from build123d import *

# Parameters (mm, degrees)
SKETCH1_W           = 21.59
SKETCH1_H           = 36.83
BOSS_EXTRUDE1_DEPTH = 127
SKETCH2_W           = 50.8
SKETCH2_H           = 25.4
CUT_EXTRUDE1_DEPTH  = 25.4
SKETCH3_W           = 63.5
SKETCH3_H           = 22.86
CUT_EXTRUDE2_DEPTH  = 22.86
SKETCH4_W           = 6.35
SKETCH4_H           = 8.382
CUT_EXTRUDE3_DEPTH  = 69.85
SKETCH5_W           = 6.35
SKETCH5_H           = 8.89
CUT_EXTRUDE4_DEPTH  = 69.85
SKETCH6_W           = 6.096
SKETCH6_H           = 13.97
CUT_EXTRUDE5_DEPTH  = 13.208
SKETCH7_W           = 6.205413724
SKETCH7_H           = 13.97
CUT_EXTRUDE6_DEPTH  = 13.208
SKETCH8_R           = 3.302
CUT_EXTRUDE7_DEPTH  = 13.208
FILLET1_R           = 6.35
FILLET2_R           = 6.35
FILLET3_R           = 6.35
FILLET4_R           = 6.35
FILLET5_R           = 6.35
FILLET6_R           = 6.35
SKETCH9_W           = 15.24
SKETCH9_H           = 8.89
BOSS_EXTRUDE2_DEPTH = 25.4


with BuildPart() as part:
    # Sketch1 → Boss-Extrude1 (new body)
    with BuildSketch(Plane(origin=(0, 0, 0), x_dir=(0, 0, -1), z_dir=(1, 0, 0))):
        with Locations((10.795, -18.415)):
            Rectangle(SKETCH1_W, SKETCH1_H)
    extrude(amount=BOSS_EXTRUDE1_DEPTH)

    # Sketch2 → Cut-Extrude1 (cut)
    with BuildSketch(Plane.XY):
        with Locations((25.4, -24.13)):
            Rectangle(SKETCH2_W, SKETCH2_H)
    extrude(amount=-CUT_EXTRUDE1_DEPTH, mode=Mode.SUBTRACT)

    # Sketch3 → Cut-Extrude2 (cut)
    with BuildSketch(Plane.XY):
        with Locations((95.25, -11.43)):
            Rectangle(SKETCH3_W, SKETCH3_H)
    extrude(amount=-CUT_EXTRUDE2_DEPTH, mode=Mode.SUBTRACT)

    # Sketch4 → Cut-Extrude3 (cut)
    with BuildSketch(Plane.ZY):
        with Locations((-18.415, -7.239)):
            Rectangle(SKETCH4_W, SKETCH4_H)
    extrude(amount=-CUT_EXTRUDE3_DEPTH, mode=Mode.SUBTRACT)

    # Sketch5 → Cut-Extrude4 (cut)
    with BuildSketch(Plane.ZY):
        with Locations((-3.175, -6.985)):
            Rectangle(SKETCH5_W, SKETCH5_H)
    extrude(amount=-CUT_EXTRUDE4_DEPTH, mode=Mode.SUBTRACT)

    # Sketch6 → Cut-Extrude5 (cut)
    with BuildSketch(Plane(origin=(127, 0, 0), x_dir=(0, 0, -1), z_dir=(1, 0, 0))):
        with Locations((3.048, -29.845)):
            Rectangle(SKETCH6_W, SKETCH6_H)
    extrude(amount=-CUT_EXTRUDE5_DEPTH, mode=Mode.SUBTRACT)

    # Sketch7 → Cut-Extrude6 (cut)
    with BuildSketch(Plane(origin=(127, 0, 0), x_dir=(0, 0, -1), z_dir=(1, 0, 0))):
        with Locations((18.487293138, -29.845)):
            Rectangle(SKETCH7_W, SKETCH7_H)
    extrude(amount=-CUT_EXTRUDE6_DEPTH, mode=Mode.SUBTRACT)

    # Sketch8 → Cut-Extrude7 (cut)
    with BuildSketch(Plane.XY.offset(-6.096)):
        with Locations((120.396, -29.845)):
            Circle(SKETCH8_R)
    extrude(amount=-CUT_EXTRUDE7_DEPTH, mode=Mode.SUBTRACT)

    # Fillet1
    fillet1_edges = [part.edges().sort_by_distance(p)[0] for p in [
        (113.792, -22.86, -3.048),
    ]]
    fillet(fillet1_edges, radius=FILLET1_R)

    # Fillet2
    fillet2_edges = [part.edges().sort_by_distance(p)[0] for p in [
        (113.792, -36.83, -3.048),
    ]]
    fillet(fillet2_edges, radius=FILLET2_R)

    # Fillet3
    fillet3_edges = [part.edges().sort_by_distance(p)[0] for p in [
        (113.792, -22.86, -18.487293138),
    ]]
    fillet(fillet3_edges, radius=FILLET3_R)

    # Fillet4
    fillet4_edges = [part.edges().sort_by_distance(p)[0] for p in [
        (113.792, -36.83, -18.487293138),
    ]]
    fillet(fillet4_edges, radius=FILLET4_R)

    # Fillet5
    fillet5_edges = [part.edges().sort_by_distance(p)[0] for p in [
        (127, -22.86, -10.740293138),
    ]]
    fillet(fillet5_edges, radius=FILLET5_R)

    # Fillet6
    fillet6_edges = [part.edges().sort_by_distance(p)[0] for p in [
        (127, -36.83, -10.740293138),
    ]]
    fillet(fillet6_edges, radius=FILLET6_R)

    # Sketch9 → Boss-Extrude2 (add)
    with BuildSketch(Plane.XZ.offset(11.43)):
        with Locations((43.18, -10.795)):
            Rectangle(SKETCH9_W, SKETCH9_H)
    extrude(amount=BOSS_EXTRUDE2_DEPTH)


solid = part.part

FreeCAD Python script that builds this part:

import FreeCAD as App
import Part
import Sketcher

V = App.Vector
Q = App.Units.Quantity


def edges_at(feature, points):
    """Names of the edges that pass closest to the given points."""
    edges = feature.Shape.Edges
    near = lambda p: min(range(len(edges)), key=lambda i: edges[i].distToShape(Part.Vertex(*p))[0])
    return sorted({f"Edge{near(p) + 1}" for p in points})


def add_polygon(sketch, points):
    """Adds a closed chain of lines whose ends are joined by coincident constraints."""
    first, n = sketch.GeometryCount, len(points)
    for a, b in zip(points, points[1:] + points[:1]):
        sketch.addGeometry(Part.LineSegment(App.Vector(*a, 0), App.Vector(*b, 0)), False)
    for i in range(n):
        sketch.addConstraint(Sketcher.Constraint("Coincident", first + i, 2, first + (i + 1) % n, 1))

doc = App.newDocument("Part")
params = doc.addObject("Spreadsheet::Sheet", "Params")
for row, (alias, value) in enumerate([
    ("sketch1_width", "1.45 in"),
    ("sketch1_height", "0.85 in"),
    ("pad1_length", "5 in"),
    ("sketch2_width", "2 in"),
    ("sketch2_height", "1 in"),
    ("pocket1_length", "1 in"),
    ("sketch3_width", "2.5 in"),
    ("sketch3_height", "0.9 in"),
    ("pocket2_length", "0.9 in"),
    ("sketch4_width", "0.33 in"),
    ("sketch4_height", "0.25 in"),
    ("pocket3_length", "2.75 in"),
    ("sketch5_width", "0.35 in"),
    ("sketch5_height", "0.25 in"),
    ("pocket4_length", "2.75 in"),
    ("sketch6_width", "0.55 in"),
    ("sketch6_height", "0.24 in"),
    ("pocket5_length", "0.52 in"),
    ("sketch7_width", "0.55 in"),
    ("pocket6_length", "0.52 in"),
    ("sketch8_diameter", "0.26 in"),
    ("pocket7_length", "0.52 in"),
    ("fillet_radius", "0.25 in"),
    ("fillet2_radius", "0.25 in"),
    ("fillet3_radius", "0.25 in"),
    ("fillet4_radius", "0.25 in"),
    ("fillet5_radius", "0.25 in"),
    ("fillet6_radius", "0.25 in"),
    ("sketch9_width", "0.6 in"),
    ("sketch9_height", "0.35 in"),
    ("pad2_length", "1 in"),
], start=1):
    params.set(f"A{row}", alias)
    params.set(f"B{row}", "=" + value)
    params.setAlias(f"B{row}", alias)

body = doc.addObject("PartDesign::Body", "Body")

sketch1 = doc.addObject("Sketcher::SketchObject", "Sketch")
body.addObject(sketch1)
sketch1.AttachmentSupport = (doc.YZ_Plane, [""])
sketch1.MapMode = "FlatFace"
add_polygon(sketch1, [(0, 0), (-37, 0), (-37, -22), (0, -22)])
sketch1.addConstraint(Sketcher.Constraint("Horizontal", 0))
sketch1.addConstraint(Sketcher.Constraint("Vertical", 1))
sketch1.addConstraint(Sketcher.Constraint("Horizontal", 2))
sketch1.addConstraint(Sketcher.Constraint("Vertical", 3))
sketch1.addConstraint(Sketcher.Constraint("Coincident", 3, 2, -1, 1))
sketch1.addConstraint(Sketcher.Constraint("DistanceX", 0, 2, 0, 1, Q("1.45 in")))
sketch1.addConstraint(Sketcher.Constraint("DistanceY", 1, 2, 1, 1, Q("0.85 in")))
sketch1.setExpression("Constraints[9]", "Params.sketch1_width")
sketch1.setExpression("Constraints[10]", "Params.sketch1_height")
pad1 = doc.addObject("PartDesign::Pad", "Pad")
body.addObject(pad1)
pad1.Profile = sketch1
pad1.setExpression("Length", "Params.pad1_length")

sketch2 = doc.addObject("Sketcher::SketchObject", "Sketch001")
body.addObject(sketch2)
sketch2.AttachmentSupport = (doc.XY_Plane, [""])
sketch2.MapMode = "FlatFace"
add_polygon(sketch2, [(0, -11), (0, -37), (51, -37), (51, -11)])
sketch2.addConstraint(Sketcher.Constraint("Vertical", 0))
sketch2.addConstraint(Sketcher.Constraint("Horizontal", 1))
sketch2.addConstraint(Sketcher.Constraint("Vertical", 2))
sketch2.addConstraint(Sketcher.Constraint("Horizontal", 3))
sketch2.addConstraint(Sketcher.Constraint("PointOnObject", 0, 2, -2))
sketch2.addConstraint(Sketcher.Constraint("DistanceX", 1, 1, 1, 2, Q("2 in")))
sketch2.addConstraint(Sketcher.Constraint("DistanceY", 0, 2, 0, 1, Q("1 in")))
sketch2.addConstraint(Sketcher.Constraint("DistanceY", 0, 2, -1, 1, Q("1.45 in")))
sketch2.setExpression("Constraints[9]", "Params.sketch2_width")
sketch2.setExpression("Constraints[10]", "Params.sketch2_height")
pocket1 = doc.addObject("PartDesign::Pocket", "Pocket")
body.addObject(pocket1)
pocket1.Profile = sketch2
pocket1.setExpression("Length", "Params.pocket1_length")

sketch3 = doc.addObject("Sketcher::SketchObject", "Sketch002")
body.addObject(sketch3)
sketch3.AttachmentSupport = (doc.XY_Plane, [""])
sketch3.MapMode = "FlatFace"
add_polygon(sketch3, [(64, 0), (64, -23), (127, -23), (127, 0)])
sketch3.addConstraint(Sketcher.Constraint("Vertical", 0))
sketch3.addConstraint(Sketcher.Constraint("Horizontal", 1))
sketch3.addConstraint(Sketcher.Constraint("Vertical", 2))
sketch3.addConstraint(Sketcher.Constraint("Horizontal", 3))
sketch3.addConstraint(Sketcher.Constraint("PointOnObject", 2, 2, -1))
sketch3.addConstraint(Sketcher.Constraint("DistanceX", 1, 1, 1, 2, Q("2.5 in")))
sketch3.addConstraint(Sketcher.Constraint("DistanceY", 0, 2, 0, 1, Q("0.9 in")))
sketch3.addConstraint(Sketcher.Constraint("DistanceX", -1, 1, 1, 2, Q("5 in")))
sketch3.setExpression("Constraints[9]", "Params.sketch3_width")
sketch3.setExpression("Constraints[10]", "Params.sketch3_height")
pocket2 = doc.addObject("PartDesign::Pocket", "Pocket001")
body.addObject(pocket2)
pocket2.Profile = sketch3
pocket2.setExpression("Length", "Params.pocket2_length")

sketch4 = doc.addObject("Sketcher::SketchObject", "Sketch003")
body.addObject(sketch4)
sketch4.AttachmentSupport = (doc.YZ_Plane, [""])
sketch4.MapMode = "FlatFace"
add_polygon(sketch4, [(-3, -22), (-11, -22), (-11, -15), (-3, -15)])
sketch4.addConstraint(Sketcher.Constraint("Horizontal", 0))
sketch4.addConstraint(Sketcher.Constraint("Vertical", 1))
sketch4.addConstraint(Sketcher.Constraint("Horizontal", 2))
sketch4.addConstraint(Sketcher.Constraint("Vertical", 3))
sketch4.addConstraint(Sketcher.Constraint("DistanceX", 0, 2, 0, 1, Q("0.33 in")))
sketch4.addConstraint(Sketcher.Constraint("DistanceY", 1, 1, 1, 2, Q("0.25 in")))
sketch4.addConstraint(Sketcher.Constraint("DistanceY", 1, 2, -1, 1, Q("0.6 in")))
sketch4.addConstraint(Sketcher.Constraint("DistanceX", 0, 2, -1, 1, Q("0.45 in")))
sketch4.setExpression("Constraints[8]", "Params.sketch4_width")
sketch4.setExpression("Constraints[9]", "Params.sketch4_height")
pocket3 = doc.addObject("PartDesign::Pocket", "Pocket002")
body.addObject(pocket3)
pocket3.Profile = sketch4
pocket3.setExpression("Length", "Params.pocket3_length")
pocket3.Reversed = True

sketch5 = doc.addObject("Sketcher::SketchObject", "Sketch004")
body.addObject(sketch5)
sketch5.AttachmentSupport = (doc.YZ_Plane, [""])
sketch5.MapMode = "FlatFace"
add_polygon(sketch5, [(-3, -6), (-11, -6), (-11, 0), (-3, 0)])
sketch5.addConstraint(Sketcher.Constraint("Horizontal", 0))
sketch5.addConstraint(Sketcher.Constraint("Vertical", 1))
sketch5.addConstraint(Sketcher.Constraint("Horizontal", 2))
sketch5.addConstraint(Sketcher.Constraint("Vertical", 3))
sketch5.addConstraint(Sketcher.Constraint("PointOnObject", 1, 2, -1))
sketch5.addConstraint(Sketcher.Constraint("DistanceX", 0, 2, 0, 1, Q("0.35 in")))
sketch5.addConstraint(Sketcher.Constraint("DistanceY", 1, 1, 1, 2, Q("0.25 in")))
sketch5.addConstraint(Sketcher.Constraint("DistanceX", 2, 2, -1, 1, Q("0.1 in")))
sketch5.setExpression("Constraints[9]", "Params.sketch5_width")
sketch5.setExpression("Constraints[10]", "Params.sketch5_height")
pocket4 = doc.addObject("PartDesign::Pocket", "Pocket003")
body.addObject(pocket4)
pocket4.Profile = sketch5
pocket4.setExpression("Length", "Params.pocket4_length")
pocket4.Reversed = True

sketch6 = doc.addObject("Sketcher::SketchObject", "Sketch005")
body.addObject(sketch6)
sketch6.AttachmentSupport = (doc.YZ_Plane, [""])
sketch6.MapMode = "FlatFace"
sketch6.AttachmentOffset = App.Placement(V(0, 0, 5 * 25.4), App.Rotation())
add_polygon(sketch6, [(-23, 0), (-37, 0), (-37, -6), (-23, -6)])
sketch6.addConstraint(Sketcher.Constraint("Horizontal", 0))
sketch6.addConstraint(Sketcher.Constraint("Vertical", 1))
sketch6.addConstraint(Sketcher.Constraint("Horizontal", 2))
sketch6.addConstraint(Sketcher.Constraint("Vertical", 3))
sketch6.addConstraint(Sketcher.Constraint("PointOnObject", 0, 2, -1))
sketch6.addConstraint(Sketcher.Constraint("DistanceX", 0, 2, 0, 1, Q("0.55 in")))
sketch6.addConstraint(Sketcher.Constraint("DistanceY", 1, 2, 1, 1, Q("0.24 in")))
sketch6.addConstraint(Sketcher.Constraint("DistanceX", 2, 2, -1, 1, Q("0.9 in")))
sketch6.setExpression("Constraints[9]", "Params.sketch6_width")
sketch6.setExpression("Constraints[10]", "Params.sketch6_height")
pocket5 = doc.addObject("PartDesign::Pocket", "Pocket004")
body.addObject(pocket5)
pocket5.Profile = sketch6
pocket5.setExpression("Length", "Params.pocket5_length")

sketch7 = doc.addObject("Sketcher::SketchObject", "Sketch006")
body.addObject(sketch7)
sketch7.AttachmentSupport = (doc.YZ_Plane, [""])
sketch7.MapMode = "FlatFace"
sketch7.AttachmentOffset = App.Placement(V(0, 0, 5 * 25.4), App.Rotation())
add_polygon(sketch7, [(-23, -15), (-37, -15), (-37, -22), (-23, -22)])
sketch7.addConstraint(Sketcher.Constraint("Horizontal", 0))
sketch7.addConstraint(Sketcher.Constraint("Vertical", 1))
sketch7.addConstraint(Sketcher.Constraint("Horizontal", 2))
sketch7.addConstraint(Sketcher.Constraint("Vertical", 3))
sketch7.addConstraint(Sketcher.Constraint("DistanceX", 0, 2, 0, 1, Q("0.55 in")))
sketch7.addConstraint(Sketcher.Constraint("DistanceX", 2, 2, -1, 1, Q("0.9 in")))
sketch7.addConstraint(Sketcher.Constraint("DistanceY", 1, 2, -1, 1, Q("0.85 in")))
sketch7.addConstraint(Sketcher.Constraint("DistanceY", 1, 2, 1, 1, 6.205414))
sketch7.setExpression("Constraints[8]", "Params.sketch7_width")
pocket6 = doc.addObject("PartDesign::Pocket", "Pocket005")
body.addObject(pocket6)
pocket6.Profile = sketch7
pocket6.setExpression("Length", "Params.pocket6_length")

sketch8 = doc.addObject("Sketcher::SketchObject", "Sketch007")
body.addObject(sketch8)
sketch8.AttachmentSupport = (doc.XY_Plane, [""])
sketch8.MapMode = "FlatFace"
sketch8.AttachmentOffset = App.Placement(V(0, 0, -0.24 * 25.4), App.Rotation())
sketch8.addGeometry(Part.Circle(V(120.4, -29.8, 0), V(0, 0, 1), 3.3), False)
sketch8.addConstraint(Sketcher.Constraint("Diameter", 0, Q("0.26 in")))
sketch8.addConstraint(Sketcher.Constraint("DistanceX", -1, 1, 0, 3, Q("4.74 in")))
sketch8.addConstraint(Sketcher.Constraint("DistanceY", 0, 3, -1, 1, Q("1.175 in")))
sketch8.setExpression("Constraints[0]", "Params.sketch8_diameter")
pocket7 = doc.addObject("PartDesign::Pocket", "Pocket006")
body.addObject(pocket7)
pocket7.Profile = sketch8
pocket7.setExpression("Length", "Params.pocket7_length")
doc.recompute()

fillet = doc.addObject("PartDesign::Fillet", "Fillet")
body.addObject(fillet)
fillet.Base = (pocket7, edges_at(pocket7, [(113.792, -22.86, -3.048)]))
fillet.setExpression("Radius", "Params.fillet_radius")
doc.recompute()

fillet2 = doc.addObject("PartDesign::Fillet", "Fillet001")
body.addObject(fillet2)
fillet2.Base = (fillet, edges_at(fillet, [(113.792, -36.83, -3.048)]))
fillet2.setExpression("Radius", "Params.fillet2_radius")
doc.recompute()

fillet3 = doc.addObject("PartDesign::Fillet", "Fillet002")
body.addObject(fillet3)
fillet3.Base = (fillet2, edges_at(fillet2, [(113.792, -22.86, -18.487)]))
fillet3.setExpression("Radius", "Params.fillet3_radius")
doc.recompute()

fillet4 = doc.addObject("PartDesign::Fillet", "Fillet003")
body.addObject(fillet4)
fillet4.Base = (fillet3, edges_at(fillet3, [(113.792, -36.83, -18.487)]))
fillet4.setExpression("Radius", "Params.fillet4_radius")
doc.recompute()

fillet5 = doc.addObject("PartDesign::Fillet", "Fillet004")
body.addObject(fillet5)
fillet5.Base = (fillet4, edges_at(fillet4, [(127, -22.86, -10.74)]))
fillet5.setExpression("Radius", "Params.fillet5_radius")
doc.recompute()

fillet6 = doc.addObject("PartDesign::Fillet", "Fillet005")
body.addObject(fillet6)
fillet6.Base = (fillet5, edges_at(fillet5, [(127, -36.83, -10.74)]))
fillet6.setExpression("Radius", "Params.fillet6_radius")

sketch9 = doc.addObject("Sketcher::SketchObject", "Sketch008")
body.addObject(sketch9)
sketch9.AttachmentSupport = (doc.XZ_Plane, [""])
sketch9.MapMode = "FlatFace"
sketch9.AttachmentOffset = App.Placement(V(0, 0, 0.45 * 25.4), App.Rotation())
add_polygon(sketch9, [(36, -6), (36, -15), (51, -15), (51, -6)])
sketch9.addConstraint(Sketcher.Constraint("Vertical", 0))
sketch9.addConstraint(Sketcher.Constraint("Horizontal", 1))
sketch9.addConstraint(Sketcher.Constraint("Vertical", 2))
sketch9.addConstraint(Sketcher.Constraint("Horizontal", 3))
sketch9.addConstraint(Sketcher.Constraint("DistanceX", 1, 1, 1, 2, Q("0.6 in")))
sketch9.addConstraint(Sketcher.Constraint("DistanceX", -1, 1, 1, 2, Q("2 in")))
sketch9.addConstraint(Sketcher.Constraint("DistanceY", 0, 2, 0, 1, Q("0.35 in")))
sketch9.addConstraint(Sketcher.Constraint("DistanceY", 0, 2, -1, 1, Q("0.6 in")))
sketch9.setExpression("Constraints[8]", "Params.sketch9_width")
sketch9.setExpression("Constraints[10]", "Params.sketch9_height")
pad2 = doc.addObject("PartDesign::Pad", "Pad001")
body.addObject(pad2)
pad2.Profile = sketch9
pad2.setExpression("Length", "Params.pad2_length")

doc.recompute()
